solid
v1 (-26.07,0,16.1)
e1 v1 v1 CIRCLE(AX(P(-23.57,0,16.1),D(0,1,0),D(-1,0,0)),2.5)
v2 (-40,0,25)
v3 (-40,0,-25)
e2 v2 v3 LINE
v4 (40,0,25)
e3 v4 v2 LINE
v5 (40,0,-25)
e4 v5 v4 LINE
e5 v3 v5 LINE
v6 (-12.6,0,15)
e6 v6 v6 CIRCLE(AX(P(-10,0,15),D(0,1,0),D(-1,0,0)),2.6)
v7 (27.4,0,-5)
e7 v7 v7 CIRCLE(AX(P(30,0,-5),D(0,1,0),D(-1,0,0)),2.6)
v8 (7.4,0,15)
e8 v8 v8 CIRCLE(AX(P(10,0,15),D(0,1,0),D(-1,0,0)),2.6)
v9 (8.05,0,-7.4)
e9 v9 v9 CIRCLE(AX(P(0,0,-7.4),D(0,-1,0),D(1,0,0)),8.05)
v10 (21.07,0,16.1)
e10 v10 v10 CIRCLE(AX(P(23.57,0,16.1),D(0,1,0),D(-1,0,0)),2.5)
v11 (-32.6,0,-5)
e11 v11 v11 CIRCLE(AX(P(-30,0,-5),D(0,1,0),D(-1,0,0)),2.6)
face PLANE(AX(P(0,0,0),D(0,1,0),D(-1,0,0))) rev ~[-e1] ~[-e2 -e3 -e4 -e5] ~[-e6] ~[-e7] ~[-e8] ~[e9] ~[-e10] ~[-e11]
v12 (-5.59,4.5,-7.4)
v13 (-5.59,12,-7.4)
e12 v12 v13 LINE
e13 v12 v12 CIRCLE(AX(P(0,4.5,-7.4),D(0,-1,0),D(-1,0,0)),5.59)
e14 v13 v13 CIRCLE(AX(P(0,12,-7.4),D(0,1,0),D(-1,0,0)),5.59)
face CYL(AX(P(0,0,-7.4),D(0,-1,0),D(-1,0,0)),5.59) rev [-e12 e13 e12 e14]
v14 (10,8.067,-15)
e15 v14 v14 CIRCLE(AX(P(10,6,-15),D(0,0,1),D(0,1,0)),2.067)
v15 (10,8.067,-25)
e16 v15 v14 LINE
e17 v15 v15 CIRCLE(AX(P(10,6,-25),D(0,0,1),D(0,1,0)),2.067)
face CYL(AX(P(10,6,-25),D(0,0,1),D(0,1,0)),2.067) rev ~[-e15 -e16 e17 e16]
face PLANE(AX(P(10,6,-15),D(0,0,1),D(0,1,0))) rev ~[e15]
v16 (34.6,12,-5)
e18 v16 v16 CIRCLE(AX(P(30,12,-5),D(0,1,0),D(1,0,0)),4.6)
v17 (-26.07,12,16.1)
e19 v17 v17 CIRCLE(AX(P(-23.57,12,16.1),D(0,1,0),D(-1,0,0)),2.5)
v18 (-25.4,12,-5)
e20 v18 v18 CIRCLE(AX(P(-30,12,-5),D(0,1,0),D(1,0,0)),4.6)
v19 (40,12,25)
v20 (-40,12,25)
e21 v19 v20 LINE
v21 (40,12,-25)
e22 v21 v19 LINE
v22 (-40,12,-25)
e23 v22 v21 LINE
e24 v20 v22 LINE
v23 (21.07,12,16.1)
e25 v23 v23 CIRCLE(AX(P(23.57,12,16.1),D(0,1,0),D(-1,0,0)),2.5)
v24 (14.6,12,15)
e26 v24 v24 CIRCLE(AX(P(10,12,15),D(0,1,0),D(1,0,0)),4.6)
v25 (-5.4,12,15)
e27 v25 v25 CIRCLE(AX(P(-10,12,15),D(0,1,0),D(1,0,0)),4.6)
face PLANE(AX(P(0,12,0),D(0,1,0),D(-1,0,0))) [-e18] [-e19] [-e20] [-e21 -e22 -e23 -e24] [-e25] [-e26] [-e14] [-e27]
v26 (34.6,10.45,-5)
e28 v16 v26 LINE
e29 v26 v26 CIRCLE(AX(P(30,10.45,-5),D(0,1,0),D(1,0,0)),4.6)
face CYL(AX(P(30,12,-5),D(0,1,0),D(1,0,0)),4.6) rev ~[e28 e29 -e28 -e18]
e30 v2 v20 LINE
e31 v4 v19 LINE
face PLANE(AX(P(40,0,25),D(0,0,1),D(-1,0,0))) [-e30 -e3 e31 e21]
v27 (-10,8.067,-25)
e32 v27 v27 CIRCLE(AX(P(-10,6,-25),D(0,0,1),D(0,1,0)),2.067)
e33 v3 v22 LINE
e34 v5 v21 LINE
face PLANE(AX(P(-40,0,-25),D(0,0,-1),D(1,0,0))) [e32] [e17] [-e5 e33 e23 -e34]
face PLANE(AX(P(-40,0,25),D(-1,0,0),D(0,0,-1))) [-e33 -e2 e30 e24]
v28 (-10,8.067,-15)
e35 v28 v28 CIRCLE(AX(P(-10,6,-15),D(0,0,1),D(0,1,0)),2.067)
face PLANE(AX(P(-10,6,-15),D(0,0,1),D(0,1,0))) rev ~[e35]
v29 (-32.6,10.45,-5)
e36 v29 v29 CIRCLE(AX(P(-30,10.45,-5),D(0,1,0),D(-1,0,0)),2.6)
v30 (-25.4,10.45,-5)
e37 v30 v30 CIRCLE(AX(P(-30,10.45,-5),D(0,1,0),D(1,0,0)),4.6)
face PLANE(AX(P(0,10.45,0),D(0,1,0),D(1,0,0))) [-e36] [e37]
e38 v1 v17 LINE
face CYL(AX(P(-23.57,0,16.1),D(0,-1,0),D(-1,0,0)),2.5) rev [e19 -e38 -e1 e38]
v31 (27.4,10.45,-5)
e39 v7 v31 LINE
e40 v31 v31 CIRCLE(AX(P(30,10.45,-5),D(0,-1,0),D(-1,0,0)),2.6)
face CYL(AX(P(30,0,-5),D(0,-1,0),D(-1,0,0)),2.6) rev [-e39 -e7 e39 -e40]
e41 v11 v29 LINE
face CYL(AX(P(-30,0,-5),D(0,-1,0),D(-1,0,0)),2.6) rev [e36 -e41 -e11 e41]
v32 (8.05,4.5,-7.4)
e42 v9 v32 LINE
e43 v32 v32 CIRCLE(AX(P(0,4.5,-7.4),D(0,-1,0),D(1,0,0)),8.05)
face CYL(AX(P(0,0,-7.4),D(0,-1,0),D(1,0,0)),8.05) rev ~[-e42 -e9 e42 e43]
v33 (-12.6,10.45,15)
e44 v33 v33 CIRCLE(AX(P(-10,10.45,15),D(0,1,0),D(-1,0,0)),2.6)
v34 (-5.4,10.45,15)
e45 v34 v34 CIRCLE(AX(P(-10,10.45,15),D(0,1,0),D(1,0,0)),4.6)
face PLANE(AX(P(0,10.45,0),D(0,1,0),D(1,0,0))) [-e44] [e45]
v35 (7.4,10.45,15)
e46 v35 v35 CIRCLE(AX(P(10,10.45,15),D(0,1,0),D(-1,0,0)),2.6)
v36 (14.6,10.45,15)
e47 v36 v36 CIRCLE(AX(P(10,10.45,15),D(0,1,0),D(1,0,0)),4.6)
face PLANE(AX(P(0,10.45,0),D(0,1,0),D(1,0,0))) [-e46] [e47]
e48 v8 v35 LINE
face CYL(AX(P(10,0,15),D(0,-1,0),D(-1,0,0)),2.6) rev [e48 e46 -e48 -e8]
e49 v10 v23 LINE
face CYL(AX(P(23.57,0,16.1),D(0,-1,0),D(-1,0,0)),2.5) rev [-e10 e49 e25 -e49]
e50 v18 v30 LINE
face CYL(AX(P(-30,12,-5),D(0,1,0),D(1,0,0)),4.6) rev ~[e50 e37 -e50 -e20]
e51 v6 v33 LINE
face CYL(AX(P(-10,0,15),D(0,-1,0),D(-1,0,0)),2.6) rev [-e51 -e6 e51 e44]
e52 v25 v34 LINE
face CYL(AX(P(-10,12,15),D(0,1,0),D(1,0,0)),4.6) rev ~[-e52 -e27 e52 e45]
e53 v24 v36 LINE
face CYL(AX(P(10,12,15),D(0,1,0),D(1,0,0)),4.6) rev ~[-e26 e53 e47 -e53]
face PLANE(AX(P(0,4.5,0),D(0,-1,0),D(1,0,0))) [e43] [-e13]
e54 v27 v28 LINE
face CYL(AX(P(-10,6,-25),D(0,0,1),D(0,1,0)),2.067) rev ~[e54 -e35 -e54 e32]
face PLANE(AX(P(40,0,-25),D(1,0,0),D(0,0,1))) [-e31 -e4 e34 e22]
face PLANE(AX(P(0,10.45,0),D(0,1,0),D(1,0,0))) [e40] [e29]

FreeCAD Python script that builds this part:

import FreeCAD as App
import Part
import Sketcher
Q = App.Units.Quantity


def add_polygon(sketch, points):
    """Adds a closed chain of lines whose ends are joined by coincident constraints."""
    first, n = sketch.GeometryCount, len(points)
    for a, b in zip(points, points[1:] + points[:1]):
        sketch.addGeometry(Part.LineSegment(App.Vector(*a, 0), App.Vector(*b, 0)), False)
    for i in range(n):
        sketch.addConstraint(Sketcher.Constraint("Coincident", first + i, 2, first + (i + 1) % n, 1))

doc = App.newDocument("Part")
body = doc.addObject("PartDesign::Body", "Body")

sketch1 = body.newObject("Sketcher::SketchObject", "Sketch")
sketch1.AttachmentSupport = (doc.getObject("XZ_Plane"), [""])
sketch1.MapMode = "FlatFace"
add_polygon(sketch1, [(40, -25), (-40, -25), (-40, 25), (40, 25)])
sketch1.addGeometry(Part.Circle(App.Vector(30, -5, 0), App.Vector(0, 0, 1), 2.6), False)
sketch1.addGeometry(Part.Circle(App.Vector(0, -7.4, 0), App.Vector(0, 0, 1), 5.6), False)
sketch1.addGeometry(Part.Circle(App.Vector(-30, -5, 0), App.Vector(0, 0, 1), 2.6), False)
sketch1.addGeometry(Part.Circle(App.Vector(23.6, 16.1, 0), App.Vector(0, 0, 1), 2.5), False)
sketch1.addGeometry(Part.Circle(App.Vector(10, 15, 0), App.Vector(0, 0, 1), 2.6), False)
sketch1.addGeometry(Part.Circle(App.Vector(-10, 15, 0), App.Vector(0, 0, 1), 2.6), False)
sketch1.addGeometry(Part.Circle(App.Vector(-23.6, 16.1, 0), App.Vector(0, 0, 1), 2.5), False)
sketch1.addConstraint([
    Sketcher.Constraint("Horizontal", 0),
    Sketcher.Constraint("Vertical", 1),
    Sketcher.Constraint("Horizontal", 2),
    Sketcher.Constraint("Vertical", 3),
    Sketcher.Constraint("Equal", 4, 6),
    Sketcher.Constraint("Equal", 6, 8),
    Sketcher.Constraint("Equal", 8, 9),
    Sketcher.Constraint("Equal", 7, 10),
    Sketcher.Constraint("Symmetric", 0, 2, 2, 2, -1, 1),
    Sketcher.Constraint("Symmetric", 4, 3, 6, 3, -2),
    Sketcher.Constraint("Symmetric", 8, 3, 9, 3, -2),
    Sketcher.Constraint("Symmetric", 7, 3, 10, 3, -2),
    Sketcher.Constraint("PointOnObject", 5, 3, -2),
    Sketcher.Constraint("Diameter", 7, Q("5 mm")),
    Sketcher.Constraint("Diameter", 4, Q("5.2 mm")),
    Sketcher.Constraint("Diameter", 5, Q("11.18 mm")),
    Sketcher.Constraint("DistanceX", 0, 2, 0, 1, Q("80 mm")),
    Sketcher.Constraint("DistanceY", 1, 1, 1, 2, Q("50 mm")),
    Sketcher.Constraint("DistanceX", -1, 1, 4, 3, Q("30 mm")),
    Sketcher.Constraint("DistanceY", 4, 3, -1, 1, Q("5 mm")),
    Sketcher.Constraint("DistanceX", -1, 1, 8, 3, Q("10 mm")),
    Sketcher.Constraint("DistanceY", 0, 2, 9, 3, Q("40 mm")),
    Sketcher.Constraint("DistanceY", 10, 3, 1, 2, Q("8.9 mm")),
    Sketcher.Constraint("DistanceY", 5, 3, 2, 2, Q("32.4 mm")),
    Sketcher.Constraint("DistanceX", 0, 2, 10, 3, Q("16.43 mm")),
])
pad1 = body.newObject("PartDesign::Pad", "Pad")
pad1.Profile = sketch1
pad1.Length = 12
pad1.Reversed = True

sketch2 = body.newObject("Sketcher::SketchObject", "Sketch001")
sketch2.AttachmentSupport = (doc.getObject("XZ_Plane"), [""])
sketch2.MapMode = "FlatFace"
sketch2.AttachmentOffset = App.Placement(App.Vector(0, 0, -12), App.Rotation())
sketch2.addGeometry([
    Part.Circle(App.Vector(30, -5, 0), App.Vector(0, 0, 1), 4.6),
    Part.Circle(App.Vector(-30, -5, 0), App.Vector(0, 0, 1), 4.6),
    Part.Circle(App.Vector(-30, -5, 0), App.Vector(0, 0, 1), 2.6),
    Part.Circle(App.Vector(-10, 15, 0), App.Vector(0, 0, 1), 4.6),
    Part.Circle(App.Vector(-10, 15, 0), App.Vector(0, 0, 1), 2.6),
    Part.Circle(App.Vector(10, 15, 0), App.Vector(0, 0, 1), 4.6),
    Part.Circle(App.Vector(10, 15, 0), App.Vector(0, 0, 1), 2.6),
], False)
sketch2.addConstraint([
    Sketcher.Constraint("Coincident", 2, 3, 1, 3),
    Sketcher.Constraint("Coincident", 4, 3, 3, 3),
    Sketcher.Constraint("Coincident", 6, 3, 5, 3),
    Sketcher.Constraint("Equal", 0, 1),
    Sketcher.Constraint("Equal", 1, 3),
    Sketcher.Constraint("Equal", 2, 4),
    Sketcher.Constraint("Equal", 3, 5),
    Sketcher.Constraint("Equal", 4, 6),
    Sketcher.Constraint("Symmetric", 0, 3, 1, 3, -2),
    Sketcher.Constraint("Symmetric", 3, 3, 5, 3, -2),
    Sketcher.Constraint("Diameter", 0, Q("9.2 mm")),
    Sketcher.Constraint("Diameter", 2, Q("5.2 mm")),
    Sketcher.Constraint("DistanceX", -1, 1, 0, 3, Q("30 mm")),
    Sketcher.Constraint("DistanceY", 0, 3, -1, 1, Q("5 mm")),
    Sketcher.Constraint("DistanceX", 3, 3, -1, 1, Q("10 mm")),
    Sketcher.Constraint("DistanceY", -1, 1, 3, 3, Q("15 mm")),
])
pocket1 = body.newObject("PartDesign::Pocket", "Pocket")
pocket1.Profile = sketch2
pocket1.Length = 1.55
pocket1.Reversed = True

sketch3 = body.newObject("Sketcher::SketchObject", "Sketch002")
sketch3.AttachmentSupport = (doc.getObject("XZ_Plane"), [""])
sketch3.MapMode = "FlatFace"
sketch3.addGeometry(Part.Circle(App.Vector(0, -7, 0), App.Vector(0, 0, 1), 8), False)
sketch3.addConstraint([
    Sketcher.Constraint("PointOnObject", 0, 3, -2),
    Sketcher.Constraint("Diameter", 0, Q("16.1 mm")),
    Sketcher.Constraint("DistanceY", 0, 3, -1, 1, Q("7.4 mm")),
])
pocket2 = body.newObject("PartDesign::Pocket", "Pocket001")
pocket2.Profile = sketch3
pocket2.Length = 4.5

sketch4 = body.newObject("Sketcher::SketchObject", "Sketch003")
sketch4.AttachmentSupport = (doc.getObject("XY_Plane"), [""])
sketch4.MapMode = "FlatFace"
sketch4.AttachmentOffset = App.Placement(App.Vector(0, 0, -25), App.Rotation())
sketch4.addGeometry([
    Part.Circle(App.Vector(10, 6, 0), App.Vector(0, 0, 1), 2.1),
    Part.Circle(App.Vector(-10, 6, 0), App.Vector(0, 0, 1), 2.1),
], False)
sketch4.addConstraint([
    Sketcher.Constraint("Equal", 0, 1),
    Sketcher.Constraint("Symmetric", 0, 3, 1, 3, -2),
    Sketcher.Constraint("Diameter", 0, Q("4.134 mm")),
    Sketcher.Constraint("DistanceX", -1, 1, 0, 3, Q("10 mm")),
    Sketcher.Constraint("DistanceY", -1, 1, 0, 3, Q("6 mm")),
])
doc.recompute()
hole = body.newObject("PartDesign::Hole", "Hole")
hole.Profile = sketch4
hole.ThreadType = "None"
hole.Diameter = 4.134
hole.DepthType = "Dimension"
hole.Depth = 10
hole.DrillPoint = "Flat"
hole.Reversed = True

doc.recompute()
